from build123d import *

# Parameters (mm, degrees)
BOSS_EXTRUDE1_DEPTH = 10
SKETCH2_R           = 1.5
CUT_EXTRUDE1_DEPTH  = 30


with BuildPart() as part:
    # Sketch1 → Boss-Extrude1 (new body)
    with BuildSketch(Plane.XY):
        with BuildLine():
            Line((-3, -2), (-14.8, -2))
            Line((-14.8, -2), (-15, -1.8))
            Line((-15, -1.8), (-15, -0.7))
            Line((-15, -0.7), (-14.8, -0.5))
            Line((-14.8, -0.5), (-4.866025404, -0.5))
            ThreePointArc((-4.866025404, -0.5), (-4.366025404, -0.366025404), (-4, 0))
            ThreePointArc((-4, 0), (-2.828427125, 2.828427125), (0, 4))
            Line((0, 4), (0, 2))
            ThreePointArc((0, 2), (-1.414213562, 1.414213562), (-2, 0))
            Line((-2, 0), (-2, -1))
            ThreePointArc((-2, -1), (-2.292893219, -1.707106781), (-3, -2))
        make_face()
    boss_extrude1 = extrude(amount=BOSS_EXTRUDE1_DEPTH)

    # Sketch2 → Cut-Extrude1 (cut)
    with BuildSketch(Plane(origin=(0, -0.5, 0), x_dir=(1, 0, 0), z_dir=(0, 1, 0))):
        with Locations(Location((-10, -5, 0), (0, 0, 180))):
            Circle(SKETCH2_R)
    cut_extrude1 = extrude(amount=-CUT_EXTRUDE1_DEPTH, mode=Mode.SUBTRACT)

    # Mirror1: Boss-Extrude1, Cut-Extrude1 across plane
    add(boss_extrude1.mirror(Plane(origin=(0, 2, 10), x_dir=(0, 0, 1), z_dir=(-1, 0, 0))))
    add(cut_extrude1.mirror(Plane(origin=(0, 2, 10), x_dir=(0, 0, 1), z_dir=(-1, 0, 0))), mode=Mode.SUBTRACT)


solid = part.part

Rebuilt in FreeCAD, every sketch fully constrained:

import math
import FreeCAD as App
import Part
import Sketcher

doc = App.newDocument("Part")
body = doc.addObject("PartDesign::Body", "Body")

# Sketch on XY plane
sketch1 = body.newObject("Sketcher::SketchObject", "Sketch")
sketch1.AttachmentSupport = (doc.getObject("XY_Plane"), [""])
sketch1.MapMode = "FlatFace"
sketch1.addGeometry(Part.LineSegment(App.Vector(-14.8, -2, 0), App.Vector(-3, -2, 0)), False)
sketch1.addGeometry(Part.ArcOfCircle(Part.Circle(App.Vector(-3, -1, 0), App.Vector(0, 0, 1), 1), math.radians(-90), math.radians(0)), False)
sketch1.addGeometry(Part.LineSegment(App.Vector(-2, -1, 0), App.Vector(-2, 0, 0)), False)
sketch1.addGeometry(Part.ArcOfCircle(Part.Circle(App.Vector(0, 0, 0), App.Vector(0, 0, 1), 2), math.radians(90), math.radians(180)), False)
sketch1.addGeometry(Part.LineSegment(App.Vector(0, 2, 0), App.Vector(0, 4, 0)), False)
sketch1.addGeometry(Part.ArcOfCircle(Part.Circle(App.Vector(0, 0, 0), App.Vector(0, 0, 1), 4), math.radians(90), math.radians(180)), False)
sketch1.addGeometry(Part.ArcOfCircle(Part.Circle(App.Vector(-4.866025, 0.5, 0), App.Vector(0, 0, 1), 1), math.radians(-90), math.radians(-30)), False)
sketch1.addGeometry(Part.LineSegment(App.Vector(-4.866025, -0.5, 0), App.Vector(-14.8, -0.5, 0)), False)
sketch1.addGeometry(Part.LineSegment(App.Vector(-14.8, -0.5, 0), App.Vector(-15, -0.7, 0)), False)
sketch1.addGeometry(Part.LineSegment(App.Vector(-15, -0.7, 0), App.Vector(-15, -1.8, 0)), False)
sketch1.addGeometry(Part.LineSegment(App.Vector(-15, -1.8, 0), App.Vector(-14.8, -2, 0)), False)
sketch1.addConstraint(Sketcher.Constraint("Tangent", 0, 2, 1, 1))
sketch1.addConstraint(Sketcher.Constraint("Tangent", 1, 2, 2, 1))
sketch1.addConstraint(Sketcher.Constraint("Tangent", 2, 2, 3, 2))
sketch1.addConstraint(Sketcher.Constraint("Coincident", 3, 1, 4, 1))
sketch1.addConstraint(Sketcher.Constraint("Coincident", 4, 2, 5, 1))
sketch1.addConstraint(Sketcher.Constraint("Coincident", 5, 2, 6, 2))
sketch1.addConstraint(Sketcher.Constraint("Tangent", 6, 1, 7, 1))
sketch1.addConstraint(Sketcher.Constraint("Coincident", 7, 2, 8, 1))
sketch1.addConstraint(Sketcher.Constraint("Coincident", 8, 2, 9, 1))
sketch1.addConstraint(Sketcher.Constraint("Coincident", 9, 2, 10, 1))
sketch1.addConstraint(Sketcher.Constraint("Coincident", 10, 2, 0, 1))
sketch1.addConstraint(Sketcher.Constraint("Horizontal", 0))
sketch1.addConstraint(Sketcher.Constraint("Vertical", 2))
sketch1.addConstraint(Sketcher.Constraint("Vertical", 4))
sketch1.addConstraint(Sketcher.Constraint("Horizontal", 7))
sketch1.addConstraint(Sketcher.Constraint("Vertical", 9))
sketch1.addConstraint(Sketcher.Constraint("Coincident", 3, 3, -1, 1))
sketch1.addConstraint(Sketcher.Constraint("Coincident", 5, 3, -1, 1))
sketch1.addConstraint(Sketcher.Constraint("Equal", 1, 6))
sketch1.addConstraint(Sketcher.Constraint("PointOnObject", 3, 1, -2))
sketch1.addConstraint(Sketcher.Constraint("PointOnObject", 5, 2, -1))
sketch1.addConstraint(Sketcher.Constraint("Perpendicular", 8, 10))
sketch1.addConstraint(Sketcher.Constraint("Vertical", 7, 2, 10, 2))
sketch1.addConstraint(Sketcher.Constraint("Equal", 8, 10))
sketch1.addConstraint(Sketcher.Constraint("Radius", 1, 1.0))
sketch1.addConstraint(Sketcher.Constraint("Radius", 3, 2.0))
sketch1.addConstraint(Sketcher.Constraint("Radius", 5, 4.0))
sketch1.addConstraint(Sketcher.Constraint("DistanceY", 2, 1, 2, 2, 1.0))
sketch1.addConstraint(Sketcher.Constraint("DistanceX", 0, 1, 0, 2, 11.8))
sketch1.addConstraint(Sketcher.Constraint("DistanceY", 9, 2, 9, 1, 1.1))
sketch1.addConstraint(Sketcher.Constraint("DistanceX", 8, 2, -1, 1, 15.0))
pad1 = body.newObject("PartDesign::Pad", "Pad")
pad1.Profile = sketch1
pad1.Length = 10

# Sketch on XZ plane
sketch2 = body.newObject("Sketcher::SketchObject", "Sketch001")
sketch2.AttachmentSupport = (doc.getObject("XZ_Plane"), [""])
sketch2.MapMode = "FlatFace"
sketch2.AttachmentOffset = App.Placement(App.Vector(0, 0, 0.5), App.Rotation())
sketch2.addGeometry(Part.Circle(App.Vector(-10, 5, 0), App.Vector(0, 0, 1), 1.5), False)
sketch2.addConstraint(Sketcher.Constraint("Diameter", 0, 3.0))
sketch2.addConstraint(Sketcher.Constraint("DistanceX", 0, 3, -1, 1, 10.0))
sketch2.addConstraint(Sketcher.Constraint("DistanceY", -1, 1, 0, 3, 5.0))
pocket1 = body.newObject("PartDesign::Pocket", "Pocket")
pocket1.Profile = sketch2
pocket1.Length = 30
pocket1.Reversed = True
doc.recompute()

mirrored = body.newObject("PartDesign::Mirrored", "Mirrored")
mirrored.Originals = [pad1, pocket1]
mirrored.MirrorPlane = (doc.getObject("YZ_Plane"), [""])
body.Tip = mirrored

doc.recompute()
